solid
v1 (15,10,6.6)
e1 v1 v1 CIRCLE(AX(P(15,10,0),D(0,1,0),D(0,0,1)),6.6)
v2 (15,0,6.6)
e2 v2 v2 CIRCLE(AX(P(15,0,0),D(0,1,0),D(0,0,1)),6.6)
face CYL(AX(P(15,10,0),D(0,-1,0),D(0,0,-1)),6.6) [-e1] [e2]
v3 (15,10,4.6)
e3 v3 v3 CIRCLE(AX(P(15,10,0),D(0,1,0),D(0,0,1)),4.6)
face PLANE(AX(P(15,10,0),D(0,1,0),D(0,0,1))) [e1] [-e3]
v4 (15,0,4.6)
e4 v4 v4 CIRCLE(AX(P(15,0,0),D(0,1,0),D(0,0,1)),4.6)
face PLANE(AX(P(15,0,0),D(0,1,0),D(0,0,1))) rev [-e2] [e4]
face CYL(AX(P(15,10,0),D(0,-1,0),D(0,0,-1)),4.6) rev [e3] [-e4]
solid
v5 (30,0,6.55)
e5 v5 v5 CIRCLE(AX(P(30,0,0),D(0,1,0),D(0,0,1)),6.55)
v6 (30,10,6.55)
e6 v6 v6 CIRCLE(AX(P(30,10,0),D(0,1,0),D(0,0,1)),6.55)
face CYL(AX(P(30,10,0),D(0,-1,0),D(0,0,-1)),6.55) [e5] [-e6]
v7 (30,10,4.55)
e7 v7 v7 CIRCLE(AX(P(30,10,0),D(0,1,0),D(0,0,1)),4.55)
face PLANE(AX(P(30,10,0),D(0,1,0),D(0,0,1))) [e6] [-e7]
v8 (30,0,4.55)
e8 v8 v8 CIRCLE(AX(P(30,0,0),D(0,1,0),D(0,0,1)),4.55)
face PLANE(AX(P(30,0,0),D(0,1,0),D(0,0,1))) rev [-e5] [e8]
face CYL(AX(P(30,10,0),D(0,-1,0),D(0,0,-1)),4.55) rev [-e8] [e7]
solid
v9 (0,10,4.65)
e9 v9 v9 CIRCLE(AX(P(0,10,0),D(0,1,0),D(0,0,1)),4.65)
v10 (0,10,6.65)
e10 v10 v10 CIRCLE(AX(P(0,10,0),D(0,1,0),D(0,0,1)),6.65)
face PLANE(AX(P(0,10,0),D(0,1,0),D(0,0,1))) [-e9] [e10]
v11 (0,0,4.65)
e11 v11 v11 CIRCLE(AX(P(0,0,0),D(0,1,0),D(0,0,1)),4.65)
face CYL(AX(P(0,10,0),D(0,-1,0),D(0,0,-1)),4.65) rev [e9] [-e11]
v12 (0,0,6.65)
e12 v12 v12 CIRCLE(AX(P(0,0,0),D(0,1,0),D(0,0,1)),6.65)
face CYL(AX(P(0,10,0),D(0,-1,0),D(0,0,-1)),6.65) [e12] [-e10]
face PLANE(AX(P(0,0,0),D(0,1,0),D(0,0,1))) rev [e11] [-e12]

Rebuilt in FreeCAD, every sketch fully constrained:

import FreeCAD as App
import Part
import Sketcher

doc = App.newDocument("Part")
body = doc.addObject("PartDesign::Body", "Body")

# Sketch on XZ plane
sketch1 = body.newObject("Sketcher::SketchObject", "Sketch")
sketch1.AttachmentSupport = (doc.getObject("XZ_Plane"), [""])
sketch1.MapMode = "FlatFace"
sketch1.addGeometry([
    Part.Circle(App.Vector(0, 0, 0), App.Vector(0, 0, 1), 6.7),
    Part.Circle(App.Vector(0, 0, 0), App.Vector(0, 0, 1), 4.7),
], False)
sketch1.addConstraint([
    Sketcher.Constraint("Coincident", 0, 3, -1, 1),
    Sketcher.Constraint("Coincident", 1, 3, -1, 1),
    Sketcher.Constraint("Diameter", 0, 13.3),
    Sketcher.Constraint("Diameter", 1, 9.3),
])
pad1 = body.newObject("PartDesign::Pad", "Pad")
pad1.Profile = sketch1
pad1.Length = 10
pad1.Reversed = True
body2 = doc.addObject("PartDesign::Body", "Body001")

# Sketch on XZ plane
sketch2 = body2.newObject("Sketcher::SketchObject", "Sketch001")
sketch2.AttachmentSupport = (doc.getObject("XZ_Plane001"), [""])
sketch2.MapMode = "FlatFace"
sketch2.addGeometry([
    Part.Circle(App.Vector(15, 0, 0), App.Vector(0, 0, 1), 6.6),
    Part.Circle(App.Vector(15, 0, 0), App.Vector(0, 0, 1), 4.6),
], False)
sketch2.addConstraint([
    Sketcher.Constraint("Coincident", 1, 3, 0, 3),
    Sketcher.Constraint("PointOnObject", 0, 3, -1),
    Sketcher.Constraint("Diameter", 0, 13.2),
    Sketcher.Constraint("Diameter", 1, 9.2),
    Sketcher.Constraint("DistanceX", -1, 1, 0, 3, 15.0),
])
pad2 = body2.newObject("PartDesign::Pad", "Pad001")
pad2.Profile = sketch2
pad2.Length = 10
pad2.Reversed = True
body3 = doc.addObject("PartDesign::Body", "Body002")

# Sketch on XZ plane
sketch3 = body3.newObject("Sketcher::SketchObject", "Sketch002")
sketch3.AttachmentSupport = (doc.getObject("XZ_Plane002"), [""])
sketch3.MapMode = "FlatFace"
sketch3.addGeometry([
    Part.Circle(App.Vector(30, 0, 0), App.Vector(0, 0, 1), 6.5),
    Part.Circle(App.Vector(30, 0, 0), App.Vector(0, 0, 1), 4.5),
], False)
sketch3.addConstraint([
    Sketcher.Constraint("Coincident", 1, 3, 0, 3),
    Sketcher.Constraint("PointOnObject", 0, 3, -1),
    Sketcher.Constraint("Diameter", 0, 13.1),
    Sketcher.Constraint("Diameter", 1, 9.1),
    Sketcher.Constraint("DistanceX", -1, 1, 0, 3, 30.0),
])
pad3 = body3.newObject("PartDesign::Pad", "Pad002")
pad3.Profile = sketch3
pad3.Length = 10
pad3.Reversed = True

doc.recompute()
